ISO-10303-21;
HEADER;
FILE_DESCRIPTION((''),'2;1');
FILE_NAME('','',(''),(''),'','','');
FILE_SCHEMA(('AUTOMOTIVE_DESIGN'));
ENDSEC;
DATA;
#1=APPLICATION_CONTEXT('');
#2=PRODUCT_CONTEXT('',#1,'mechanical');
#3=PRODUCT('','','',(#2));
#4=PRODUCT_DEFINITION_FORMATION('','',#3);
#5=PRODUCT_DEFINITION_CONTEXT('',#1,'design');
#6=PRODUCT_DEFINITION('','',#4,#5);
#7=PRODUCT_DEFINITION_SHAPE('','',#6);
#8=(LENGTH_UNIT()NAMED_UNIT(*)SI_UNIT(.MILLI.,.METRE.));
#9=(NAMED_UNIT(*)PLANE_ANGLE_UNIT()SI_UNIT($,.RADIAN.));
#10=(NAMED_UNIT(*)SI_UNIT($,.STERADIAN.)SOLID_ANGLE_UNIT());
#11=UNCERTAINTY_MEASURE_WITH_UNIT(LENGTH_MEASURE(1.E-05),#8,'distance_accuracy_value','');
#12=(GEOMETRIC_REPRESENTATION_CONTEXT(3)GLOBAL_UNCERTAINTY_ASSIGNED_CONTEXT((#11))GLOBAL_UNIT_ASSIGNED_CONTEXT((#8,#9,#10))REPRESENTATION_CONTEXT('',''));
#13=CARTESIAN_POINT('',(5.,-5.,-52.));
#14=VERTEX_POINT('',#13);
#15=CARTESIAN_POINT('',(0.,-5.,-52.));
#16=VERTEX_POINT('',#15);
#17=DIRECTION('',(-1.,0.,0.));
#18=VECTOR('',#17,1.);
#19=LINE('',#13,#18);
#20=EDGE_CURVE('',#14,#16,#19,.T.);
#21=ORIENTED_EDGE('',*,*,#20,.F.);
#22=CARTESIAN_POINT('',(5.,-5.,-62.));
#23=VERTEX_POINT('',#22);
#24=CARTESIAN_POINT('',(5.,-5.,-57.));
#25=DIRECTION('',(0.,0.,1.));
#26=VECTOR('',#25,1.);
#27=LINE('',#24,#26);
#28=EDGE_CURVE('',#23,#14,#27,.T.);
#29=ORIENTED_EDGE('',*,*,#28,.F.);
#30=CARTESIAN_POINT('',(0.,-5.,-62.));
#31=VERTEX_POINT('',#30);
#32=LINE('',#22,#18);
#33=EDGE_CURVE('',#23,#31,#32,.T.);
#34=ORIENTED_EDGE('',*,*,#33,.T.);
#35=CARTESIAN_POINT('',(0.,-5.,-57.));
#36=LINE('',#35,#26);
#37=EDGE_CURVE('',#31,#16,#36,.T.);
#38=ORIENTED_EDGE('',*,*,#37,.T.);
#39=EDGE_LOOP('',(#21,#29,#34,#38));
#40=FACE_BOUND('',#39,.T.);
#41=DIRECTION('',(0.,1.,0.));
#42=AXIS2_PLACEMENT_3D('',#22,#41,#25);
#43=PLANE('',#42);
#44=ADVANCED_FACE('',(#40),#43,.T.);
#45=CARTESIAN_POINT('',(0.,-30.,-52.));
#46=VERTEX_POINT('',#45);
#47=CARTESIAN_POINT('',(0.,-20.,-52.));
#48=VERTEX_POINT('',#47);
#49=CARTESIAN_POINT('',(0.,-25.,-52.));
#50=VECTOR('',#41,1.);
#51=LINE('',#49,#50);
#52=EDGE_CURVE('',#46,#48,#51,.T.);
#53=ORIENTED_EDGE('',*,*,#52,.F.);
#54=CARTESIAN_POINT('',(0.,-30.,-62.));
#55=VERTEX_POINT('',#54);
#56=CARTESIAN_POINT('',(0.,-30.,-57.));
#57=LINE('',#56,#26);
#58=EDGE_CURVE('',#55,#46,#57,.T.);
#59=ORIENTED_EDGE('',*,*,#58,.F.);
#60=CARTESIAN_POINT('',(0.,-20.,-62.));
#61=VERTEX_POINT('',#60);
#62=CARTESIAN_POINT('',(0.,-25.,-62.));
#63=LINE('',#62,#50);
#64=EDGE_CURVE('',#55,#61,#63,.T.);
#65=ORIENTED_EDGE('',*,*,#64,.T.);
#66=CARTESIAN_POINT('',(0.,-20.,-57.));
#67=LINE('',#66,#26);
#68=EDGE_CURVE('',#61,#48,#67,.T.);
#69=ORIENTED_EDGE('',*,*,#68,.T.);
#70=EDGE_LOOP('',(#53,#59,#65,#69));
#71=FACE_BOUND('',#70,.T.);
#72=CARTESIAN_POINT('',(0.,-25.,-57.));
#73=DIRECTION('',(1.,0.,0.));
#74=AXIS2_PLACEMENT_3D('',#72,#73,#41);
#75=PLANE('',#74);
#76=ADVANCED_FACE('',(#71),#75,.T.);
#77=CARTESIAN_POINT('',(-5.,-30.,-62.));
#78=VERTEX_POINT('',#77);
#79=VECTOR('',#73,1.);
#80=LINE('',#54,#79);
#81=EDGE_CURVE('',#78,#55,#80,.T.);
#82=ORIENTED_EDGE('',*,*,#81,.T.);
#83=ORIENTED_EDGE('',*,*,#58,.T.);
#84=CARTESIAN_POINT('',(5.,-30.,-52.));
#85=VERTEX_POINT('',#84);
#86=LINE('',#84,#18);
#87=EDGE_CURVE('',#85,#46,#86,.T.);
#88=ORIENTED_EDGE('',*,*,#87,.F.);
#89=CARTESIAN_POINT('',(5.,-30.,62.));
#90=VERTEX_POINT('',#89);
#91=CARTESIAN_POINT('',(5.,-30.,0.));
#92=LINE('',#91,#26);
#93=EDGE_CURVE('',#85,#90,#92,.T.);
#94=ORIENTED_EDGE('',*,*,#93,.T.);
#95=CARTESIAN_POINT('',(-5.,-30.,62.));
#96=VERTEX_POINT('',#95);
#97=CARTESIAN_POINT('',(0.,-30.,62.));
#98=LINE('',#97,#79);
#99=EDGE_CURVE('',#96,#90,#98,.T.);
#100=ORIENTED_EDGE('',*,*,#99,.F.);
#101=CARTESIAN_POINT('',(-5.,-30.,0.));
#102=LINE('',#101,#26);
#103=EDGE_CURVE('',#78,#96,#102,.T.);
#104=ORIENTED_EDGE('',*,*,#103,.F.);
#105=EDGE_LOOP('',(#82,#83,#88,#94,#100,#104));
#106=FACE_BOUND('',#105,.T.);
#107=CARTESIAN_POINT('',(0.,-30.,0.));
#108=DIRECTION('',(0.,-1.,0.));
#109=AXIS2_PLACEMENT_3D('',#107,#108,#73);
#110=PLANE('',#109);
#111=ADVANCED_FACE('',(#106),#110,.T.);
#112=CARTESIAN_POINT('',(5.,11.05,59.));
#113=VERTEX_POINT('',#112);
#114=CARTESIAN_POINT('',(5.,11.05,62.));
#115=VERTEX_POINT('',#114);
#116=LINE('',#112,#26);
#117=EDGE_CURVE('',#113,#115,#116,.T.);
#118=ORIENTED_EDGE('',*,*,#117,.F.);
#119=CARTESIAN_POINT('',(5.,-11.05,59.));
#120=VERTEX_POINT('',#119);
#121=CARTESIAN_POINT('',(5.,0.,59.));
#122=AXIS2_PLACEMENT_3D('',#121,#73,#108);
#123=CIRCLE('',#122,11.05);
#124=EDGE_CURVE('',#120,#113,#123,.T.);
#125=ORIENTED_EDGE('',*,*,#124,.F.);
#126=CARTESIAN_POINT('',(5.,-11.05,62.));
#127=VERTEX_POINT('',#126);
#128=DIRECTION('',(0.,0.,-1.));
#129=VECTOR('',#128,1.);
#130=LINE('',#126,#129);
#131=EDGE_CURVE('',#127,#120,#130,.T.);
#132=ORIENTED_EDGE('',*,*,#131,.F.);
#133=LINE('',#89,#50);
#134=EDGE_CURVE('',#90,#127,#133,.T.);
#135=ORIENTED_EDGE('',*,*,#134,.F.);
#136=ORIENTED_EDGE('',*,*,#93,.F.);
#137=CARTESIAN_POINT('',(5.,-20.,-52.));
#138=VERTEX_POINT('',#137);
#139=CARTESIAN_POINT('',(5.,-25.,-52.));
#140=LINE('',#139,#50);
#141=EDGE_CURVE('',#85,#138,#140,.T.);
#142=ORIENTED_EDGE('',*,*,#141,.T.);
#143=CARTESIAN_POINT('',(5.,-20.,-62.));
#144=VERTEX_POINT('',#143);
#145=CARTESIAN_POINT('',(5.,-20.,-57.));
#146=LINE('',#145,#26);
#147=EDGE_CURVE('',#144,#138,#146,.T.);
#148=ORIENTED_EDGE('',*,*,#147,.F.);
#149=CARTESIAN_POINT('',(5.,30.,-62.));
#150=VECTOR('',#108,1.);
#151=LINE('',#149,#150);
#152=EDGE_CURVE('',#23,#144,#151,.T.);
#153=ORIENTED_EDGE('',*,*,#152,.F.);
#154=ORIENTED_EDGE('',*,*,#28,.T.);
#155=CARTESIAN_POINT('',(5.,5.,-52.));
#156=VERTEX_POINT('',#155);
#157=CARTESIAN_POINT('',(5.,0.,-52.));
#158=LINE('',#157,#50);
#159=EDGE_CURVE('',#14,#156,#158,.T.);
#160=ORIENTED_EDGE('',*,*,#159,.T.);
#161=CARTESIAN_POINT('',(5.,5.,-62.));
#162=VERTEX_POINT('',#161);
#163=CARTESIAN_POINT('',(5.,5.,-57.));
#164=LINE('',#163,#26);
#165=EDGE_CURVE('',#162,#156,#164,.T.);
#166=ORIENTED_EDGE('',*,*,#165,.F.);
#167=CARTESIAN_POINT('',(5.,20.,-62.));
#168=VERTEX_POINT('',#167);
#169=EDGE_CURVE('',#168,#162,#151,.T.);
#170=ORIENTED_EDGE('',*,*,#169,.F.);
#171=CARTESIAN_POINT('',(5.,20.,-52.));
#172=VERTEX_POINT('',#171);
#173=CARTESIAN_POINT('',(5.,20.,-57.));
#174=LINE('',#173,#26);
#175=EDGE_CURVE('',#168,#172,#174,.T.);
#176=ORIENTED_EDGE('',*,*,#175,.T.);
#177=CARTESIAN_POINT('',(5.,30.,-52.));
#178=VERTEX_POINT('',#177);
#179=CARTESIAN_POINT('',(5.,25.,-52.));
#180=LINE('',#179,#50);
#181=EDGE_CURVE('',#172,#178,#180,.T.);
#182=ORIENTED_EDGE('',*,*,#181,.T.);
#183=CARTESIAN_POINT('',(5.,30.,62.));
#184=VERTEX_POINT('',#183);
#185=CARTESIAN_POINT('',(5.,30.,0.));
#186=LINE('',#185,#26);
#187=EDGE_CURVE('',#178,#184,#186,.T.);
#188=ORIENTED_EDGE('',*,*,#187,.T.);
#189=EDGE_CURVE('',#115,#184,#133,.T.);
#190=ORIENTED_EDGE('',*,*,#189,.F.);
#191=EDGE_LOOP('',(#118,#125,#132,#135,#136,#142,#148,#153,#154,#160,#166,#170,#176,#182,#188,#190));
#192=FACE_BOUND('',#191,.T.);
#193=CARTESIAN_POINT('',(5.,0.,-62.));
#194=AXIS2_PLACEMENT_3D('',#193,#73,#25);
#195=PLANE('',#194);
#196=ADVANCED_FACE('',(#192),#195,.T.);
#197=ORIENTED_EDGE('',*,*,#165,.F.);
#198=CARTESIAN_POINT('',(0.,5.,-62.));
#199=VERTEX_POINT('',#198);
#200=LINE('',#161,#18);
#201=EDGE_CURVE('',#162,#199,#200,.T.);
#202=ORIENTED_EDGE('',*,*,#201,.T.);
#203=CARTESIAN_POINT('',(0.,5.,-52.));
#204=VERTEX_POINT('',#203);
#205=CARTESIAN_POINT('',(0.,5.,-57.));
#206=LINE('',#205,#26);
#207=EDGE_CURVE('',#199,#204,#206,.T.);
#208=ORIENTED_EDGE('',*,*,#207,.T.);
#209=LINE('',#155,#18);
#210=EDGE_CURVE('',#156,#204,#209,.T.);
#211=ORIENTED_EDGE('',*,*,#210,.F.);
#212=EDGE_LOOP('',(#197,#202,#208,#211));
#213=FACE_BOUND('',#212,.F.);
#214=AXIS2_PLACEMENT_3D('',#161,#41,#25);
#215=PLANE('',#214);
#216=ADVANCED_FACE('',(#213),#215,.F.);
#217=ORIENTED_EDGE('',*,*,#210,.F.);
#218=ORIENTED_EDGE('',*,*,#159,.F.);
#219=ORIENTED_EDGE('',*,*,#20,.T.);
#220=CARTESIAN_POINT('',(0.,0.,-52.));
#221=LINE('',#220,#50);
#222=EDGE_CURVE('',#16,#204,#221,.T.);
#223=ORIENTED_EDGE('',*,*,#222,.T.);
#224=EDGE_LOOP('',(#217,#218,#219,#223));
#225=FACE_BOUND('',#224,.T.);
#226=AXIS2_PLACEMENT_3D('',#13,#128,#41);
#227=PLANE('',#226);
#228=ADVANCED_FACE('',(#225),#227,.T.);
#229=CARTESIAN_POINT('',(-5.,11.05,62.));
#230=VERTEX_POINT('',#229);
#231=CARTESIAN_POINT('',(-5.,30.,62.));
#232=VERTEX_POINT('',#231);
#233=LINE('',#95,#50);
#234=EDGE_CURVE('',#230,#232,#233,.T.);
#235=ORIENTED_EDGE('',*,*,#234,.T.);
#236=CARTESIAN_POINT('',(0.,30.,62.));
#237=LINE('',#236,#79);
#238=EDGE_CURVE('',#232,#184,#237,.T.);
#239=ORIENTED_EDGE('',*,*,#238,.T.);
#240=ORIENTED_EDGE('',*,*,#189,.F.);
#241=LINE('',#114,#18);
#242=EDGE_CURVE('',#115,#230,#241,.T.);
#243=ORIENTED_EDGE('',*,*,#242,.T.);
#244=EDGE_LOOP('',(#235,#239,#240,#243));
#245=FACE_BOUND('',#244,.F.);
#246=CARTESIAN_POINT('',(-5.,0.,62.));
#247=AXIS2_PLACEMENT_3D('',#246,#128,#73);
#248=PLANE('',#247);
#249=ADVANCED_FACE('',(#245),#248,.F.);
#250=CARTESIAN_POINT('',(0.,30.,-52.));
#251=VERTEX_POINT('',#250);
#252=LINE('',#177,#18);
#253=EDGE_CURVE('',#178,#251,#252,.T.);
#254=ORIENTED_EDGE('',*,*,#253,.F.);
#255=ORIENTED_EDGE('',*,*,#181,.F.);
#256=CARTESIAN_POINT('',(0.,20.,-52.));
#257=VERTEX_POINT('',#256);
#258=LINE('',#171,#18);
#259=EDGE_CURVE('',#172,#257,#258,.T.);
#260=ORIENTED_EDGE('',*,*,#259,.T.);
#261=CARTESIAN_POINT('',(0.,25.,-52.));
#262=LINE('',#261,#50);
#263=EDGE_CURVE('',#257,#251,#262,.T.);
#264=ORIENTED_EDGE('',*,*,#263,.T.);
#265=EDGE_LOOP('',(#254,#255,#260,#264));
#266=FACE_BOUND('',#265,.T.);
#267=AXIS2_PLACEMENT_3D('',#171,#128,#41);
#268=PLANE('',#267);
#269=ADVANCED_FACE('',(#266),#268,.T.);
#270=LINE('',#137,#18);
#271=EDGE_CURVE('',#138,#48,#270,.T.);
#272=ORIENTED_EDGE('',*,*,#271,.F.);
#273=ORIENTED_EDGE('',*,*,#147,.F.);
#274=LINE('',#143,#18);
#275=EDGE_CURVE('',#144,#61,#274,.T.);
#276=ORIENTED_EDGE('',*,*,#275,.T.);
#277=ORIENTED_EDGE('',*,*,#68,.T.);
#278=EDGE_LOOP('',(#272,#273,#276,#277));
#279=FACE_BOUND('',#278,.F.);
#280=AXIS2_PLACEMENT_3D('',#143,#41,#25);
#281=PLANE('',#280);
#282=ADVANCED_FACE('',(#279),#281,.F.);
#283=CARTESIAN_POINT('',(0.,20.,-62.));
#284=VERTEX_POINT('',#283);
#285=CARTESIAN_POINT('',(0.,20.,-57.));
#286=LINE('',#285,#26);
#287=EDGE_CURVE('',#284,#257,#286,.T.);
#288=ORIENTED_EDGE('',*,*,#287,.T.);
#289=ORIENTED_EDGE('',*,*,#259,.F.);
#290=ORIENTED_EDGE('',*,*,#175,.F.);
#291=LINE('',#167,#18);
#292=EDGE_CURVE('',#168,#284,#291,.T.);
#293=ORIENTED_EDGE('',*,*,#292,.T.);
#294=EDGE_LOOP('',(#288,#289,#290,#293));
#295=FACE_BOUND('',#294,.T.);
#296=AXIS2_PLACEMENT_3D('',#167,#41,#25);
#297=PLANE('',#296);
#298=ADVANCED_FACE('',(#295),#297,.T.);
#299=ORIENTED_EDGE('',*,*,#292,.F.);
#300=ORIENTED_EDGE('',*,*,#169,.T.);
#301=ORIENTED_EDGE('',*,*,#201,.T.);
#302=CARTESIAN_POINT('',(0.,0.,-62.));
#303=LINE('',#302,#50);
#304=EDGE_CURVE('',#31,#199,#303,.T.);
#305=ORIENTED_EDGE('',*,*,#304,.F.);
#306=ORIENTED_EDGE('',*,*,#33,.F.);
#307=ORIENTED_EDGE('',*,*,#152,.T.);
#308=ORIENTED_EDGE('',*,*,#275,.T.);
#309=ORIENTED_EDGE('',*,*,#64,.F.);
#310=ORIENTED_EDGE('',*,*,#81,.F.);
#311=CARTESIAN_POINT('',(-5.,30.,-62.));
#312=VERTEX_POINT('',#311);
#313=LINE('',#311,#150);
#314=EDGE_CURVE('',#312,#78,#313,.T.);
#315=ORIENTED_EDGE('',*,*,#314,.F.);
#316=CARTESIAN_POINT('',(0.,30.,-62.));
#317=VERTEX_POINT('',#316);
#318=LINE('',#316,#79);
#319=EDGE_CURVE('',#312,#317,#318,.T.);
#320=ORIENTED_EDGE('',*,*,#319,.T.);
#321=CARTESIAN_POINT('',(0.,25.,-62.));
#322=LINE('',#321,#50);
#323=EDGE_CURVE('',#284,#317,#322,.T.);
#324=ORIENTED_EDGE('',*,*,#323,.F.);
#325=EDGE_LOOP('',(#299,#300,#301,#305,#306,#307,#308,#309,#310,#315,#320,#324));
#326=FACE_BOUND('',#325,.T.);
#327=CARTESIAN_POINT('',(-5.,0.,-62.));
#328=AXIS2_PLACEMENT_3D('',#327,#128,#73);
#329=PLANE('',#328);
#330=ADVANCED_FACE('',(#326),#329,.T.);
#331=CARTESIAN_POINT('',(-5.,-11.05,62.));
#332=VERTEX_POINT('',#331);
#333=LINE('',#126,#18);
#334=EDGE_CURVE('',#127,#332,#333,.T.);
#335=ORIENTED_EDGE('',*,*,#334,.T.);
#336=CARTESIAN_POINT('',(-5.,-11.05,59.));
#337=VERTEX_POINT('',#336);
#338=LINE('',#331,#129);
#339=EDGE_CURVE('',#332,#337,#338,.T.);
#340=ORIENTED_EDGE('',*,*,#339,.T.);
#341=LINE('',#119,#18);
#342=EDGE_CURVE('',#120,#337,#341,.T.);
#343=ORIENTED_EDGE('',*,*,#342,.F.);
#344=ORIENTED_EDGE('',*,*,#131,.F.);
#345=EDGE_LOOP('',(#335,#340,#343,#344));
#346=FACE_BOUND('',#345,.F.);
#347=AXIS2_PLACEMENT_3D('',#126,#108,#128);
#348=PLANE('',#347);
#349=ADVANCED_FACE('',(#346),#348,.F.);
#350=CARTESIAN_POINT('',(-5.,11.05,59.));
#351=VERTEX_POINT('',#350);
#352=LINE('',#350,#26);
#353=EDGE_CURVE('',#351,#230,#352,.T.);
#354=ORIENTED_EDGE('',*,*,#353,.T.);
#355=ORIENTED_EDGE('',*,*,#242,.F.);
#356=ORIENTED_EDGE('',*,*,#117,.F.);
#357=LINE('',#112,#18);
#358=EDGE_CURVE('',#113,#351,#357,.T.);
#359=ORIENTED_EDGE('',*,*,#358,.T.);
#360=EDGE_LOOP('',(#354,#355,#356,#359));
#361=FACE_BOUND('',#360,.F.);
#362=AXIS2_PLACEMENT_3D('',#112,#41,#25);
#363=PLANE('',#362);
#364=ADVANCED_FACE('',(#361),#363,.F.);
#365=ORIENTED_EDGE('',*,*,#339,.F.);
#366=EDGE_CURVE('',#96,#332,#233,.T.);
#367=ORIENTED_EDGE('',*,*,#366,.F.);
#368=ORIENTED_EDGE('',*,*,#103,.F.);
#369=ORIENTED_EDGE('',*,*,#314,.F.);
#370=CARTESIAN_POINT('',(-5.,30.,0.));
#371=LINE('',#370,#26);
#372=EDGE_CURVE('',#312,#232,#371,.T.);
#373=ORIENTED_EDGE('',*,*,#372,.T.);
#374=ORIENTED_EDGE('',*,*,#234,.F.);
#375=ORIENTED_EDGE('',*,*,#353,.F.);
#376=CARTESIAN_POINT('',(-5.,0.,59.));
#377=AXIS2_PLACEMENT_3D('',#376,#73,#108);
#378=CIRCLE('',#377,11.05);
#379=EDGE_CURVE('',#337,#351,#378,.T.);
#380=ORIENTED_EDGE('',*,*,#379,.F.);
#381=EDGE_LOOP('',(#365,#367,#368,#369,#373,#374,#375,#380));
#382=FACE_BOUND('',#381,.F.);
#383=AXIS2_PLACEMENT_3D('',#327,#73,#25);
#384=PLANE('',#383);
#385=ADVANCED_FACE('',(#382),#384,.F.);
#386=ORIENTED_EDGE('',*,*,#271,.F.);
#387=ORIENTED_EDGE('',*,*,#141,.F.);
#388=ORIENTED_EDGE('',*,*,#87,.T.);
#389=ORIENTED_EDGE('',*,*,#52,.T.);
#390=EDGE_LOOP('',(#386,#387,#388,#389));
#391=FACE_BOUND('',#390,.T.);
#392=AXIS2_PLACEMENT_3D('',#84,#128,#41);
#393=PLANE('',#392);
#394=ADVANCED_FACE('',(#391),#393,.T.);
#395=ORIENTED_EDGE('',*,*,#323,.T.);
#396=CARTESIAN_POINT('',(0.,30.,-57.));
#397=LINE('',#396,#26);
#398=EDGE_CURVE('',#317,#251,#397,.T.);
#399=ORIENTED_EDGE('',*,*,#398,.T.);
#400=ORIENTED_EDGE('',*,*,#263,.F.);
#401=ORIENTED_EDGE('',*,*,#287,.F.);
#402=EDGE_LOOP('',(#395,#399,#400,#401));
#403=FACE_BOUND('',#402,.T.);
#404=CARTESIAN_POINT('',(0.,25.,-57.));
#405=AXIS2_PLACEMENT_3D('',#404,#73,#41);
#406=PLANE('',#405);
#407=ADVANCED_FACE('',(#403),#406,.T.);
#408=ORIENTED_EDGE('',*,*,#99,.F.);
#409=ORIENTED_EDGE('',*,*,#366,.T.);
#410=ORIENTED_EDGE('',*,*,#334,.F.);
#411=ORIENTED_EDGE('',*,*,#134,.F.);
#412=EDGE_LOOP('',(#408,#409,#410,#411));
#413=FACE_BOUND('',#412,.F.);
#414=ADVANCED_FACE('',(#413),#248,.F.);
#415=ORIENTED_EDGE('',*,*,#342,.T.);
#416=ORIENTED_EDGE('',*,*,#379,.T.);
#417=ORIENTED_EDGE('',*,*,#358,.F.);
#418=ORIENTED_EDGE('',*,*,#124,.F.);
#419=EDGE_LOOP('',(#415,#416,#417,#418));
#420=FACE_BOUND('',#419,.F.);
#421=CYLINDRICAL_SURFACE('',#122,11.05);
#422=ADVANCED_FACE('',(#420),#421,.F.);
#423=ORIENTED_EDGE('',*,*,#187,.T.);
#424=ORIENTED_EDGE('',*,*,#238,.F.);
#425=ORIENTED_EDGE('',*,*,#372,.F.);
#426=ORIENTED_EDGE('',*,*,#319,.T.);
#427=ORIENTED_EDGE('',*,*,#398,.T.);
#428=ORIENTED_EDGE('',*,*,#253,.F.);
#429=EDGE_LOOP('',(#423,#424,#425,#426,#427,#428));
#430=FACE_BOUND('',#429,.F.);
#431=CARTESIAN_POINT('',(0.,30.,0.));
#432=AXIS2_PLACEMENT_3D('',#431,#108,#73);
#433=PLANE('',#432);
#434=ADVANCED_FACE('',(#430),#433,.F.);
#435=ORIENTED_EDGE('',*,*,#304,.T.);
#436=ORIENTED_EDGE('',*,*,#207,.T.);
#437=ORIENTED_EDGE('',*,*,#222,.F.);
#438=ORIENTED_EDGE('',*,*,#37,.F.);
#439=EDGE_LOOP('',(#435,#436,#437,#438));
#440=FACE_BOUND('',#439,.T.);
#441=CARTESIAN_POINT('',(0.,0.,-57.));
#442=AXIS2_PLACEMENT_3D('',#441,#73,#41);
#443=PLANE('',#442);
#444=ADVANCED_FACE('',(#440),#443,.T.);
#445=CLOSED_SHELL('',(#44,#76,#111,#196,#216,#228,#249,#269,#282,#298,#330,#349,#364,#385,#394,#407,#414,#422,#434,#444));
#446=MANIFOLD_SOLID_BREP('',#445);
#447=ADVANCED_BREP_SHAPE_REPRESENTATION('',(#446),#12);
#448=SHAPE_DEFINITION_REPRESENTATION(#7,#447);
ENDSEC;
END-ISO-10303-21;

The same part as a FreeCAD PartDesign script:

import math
import FreeCAD as App
import Part
import Sketcher

V = App.Vector
Q = App.Units.Quantity

doc = App.newDocument("Part")
params = doc.addObject("Spreadsheet::Sheet", "Params")
for row, (alias, value) in enumerate([
    ("sketch1_width", "10 mm"),
    ("sketch1_height", "124 mm"),
    ("pad1_length", "60 mm"),
    ("sketch2_height", "3 mm"),
    ("sketch2_radius", "11.05 mm"),
    ("pocket1_length", "10 mm"),
    ("sketch3_width", "10 mm"),
    ("pocket2_length", "5 mm"),
], start=1):
    params.set(f"A{row}", alias)
    params.set(f"B{row}", "=" + value)
    params.setAlias(f"B{row}", alias)

body = doc.addObject("PartDesign::Body", "Body")

# Sketch on XZ plane
sketch1 = body.newObject("Sketcher::SketchObject", "Sketch")
sketch1.AttachmentSupport = (doc.getObject("XZ_Plane"), [""])
sketch1.MapMode = "FlatFace"
sketch1.addGeometry([
    Part.LineSegment(V(-5, 62, 0), V(-5, -62, 0)),
    Part.LineSegment(V(-5, -62, 0), V(5, -62, 0)),
    Part.LineSegment(V(5, -62, 0), V(5, 62, 0)),
    Part.LineSegment(V(5, 62, 0), V(-5, 62, 0)),
], False)
sketch1.addConstraint([
    Sketcher.Constraint("Coincident", 0, 2, 1, 1),
    Sketcher.Constraint("Coincident", 1, 2, 2, 1),
    Sketcher.Constraint("Coincident", 2, 2, 3, 1),
    Sketcher.Constraint("Coincident", 3, 2, 0, 1),
    Sketcher.Constraint("Vertical", 0),
    Sketcher.Constraint("Horizontal", 1),
    Sketcher.Constraint("Vertical", 2),
    Sketcher.Constraint("Horizontal", 3),
    Sketcher.Constraint("Symmetric", 0, 2, 2, 2, -1, 1),
    Sketcher.Constraint("DistanceX", 1, 1, 1, 2, Q("10 mm")),
    Sketcher.Constraint("DistanceY", 0, 2, 0, 1, Q("124 mm")),
])
sketch1.setExpression("Constraints[9]", "Params.sketch1_width")
sketch1.setExpression("Constraints[10]", "Params.sketch1_height")
pad1 = body.newObject("PartDesign::Pad", "Pad")
pad1.Profile = sketch1
pad1.setExpression("Length", "Params.pad1_length")
pad1.Midplane = True

# Sketch on YZ plane
sketch2 = body.newObject("Sketcher::SketchObject", "Sketch001")
sketch2.AttachmentSupport = (doc.getObject("YZ_Plane"), [""])
sketch2.MapMode = "FlatFace"
sketch2.AttachmentOffset = App.Placement(V(0, 0, 5), App.Rotation())
sketch2.addGeometry([
    Part.LineSegment(V(-11.1, 62, 0), V(-11.1, 59, 0)),
    Part.ArcOfCircle(Part.Circle(V(0, 59, 0), V(0, 0, 1), 11.1), math.radians(180), math.radians(360)),
    Part.LineSegment(V(11.1, 59, 0), V(11.1, 62, 0)),
    Part.LineSegment(V(11.1, 62, 0), V(-11.1, 62, 0)),
], False)
sketch2.addConstraint([
    Sketcher.Constraint("Tangent", 0, 2, 1, 1),
    Sketcher.Constraint("Tangent", 1, 2, 2, 1),
    Sketcher.Constraint("Coincident", 2, 2, 3, 1),
    Sketcher.Constraint("Coincident", 3, 2, 0, 1),
    Sketcher.Constraint("Vertical", 0),
    Sketcher.Constraint("Vertical", 2),
    Sketcher.Constraint("Horizontal", 3),
    Sketcher.Constraint("PointOnObject", 1, 3, -2),
    Sketcher.Constraint("DistanceY", 0, 2, 0, 1, Q("3 mm")),
    Sketcher.Constraint("Radius", 1, Q("11.05 mm")),
    Sketcher.Constraint("DistanceY", -1, 1, 1, 3, Q("59 mm")),
])
sketch2.setExpression("Constraints[8]", "Params.sketch2_height")
sketch2.setExpression("Constraints[9]", "Params.sketch2_radius")
pocket1 = body.newObject("PartDesign::Pocket", "Pocket")
pocket1.Profile = sketch2
pocket1.setExpression("Length", "Params.pocket1_length")

# Sketch on YZ plane
sketch3 = body.newObject("Sketcher::SketchObject", "Sketch002")
sketch3.AttachmentSupport = (doc.getObject("YZ_Plane"), [""])
sketch3.MapMode = "FlatFace"
sketch3.AttachmentOffset = App.Placement(V(0, 0, 5), App.Rotation())
sketch3.addGeometry([
    Part.LineSegment(V(-30, -52, 0), V(-30, -62, 0)),  # 0
    Part.LineSegment(V(-30, -62, 0), V(-20, -62, 0)),  # 1
    Part.LineSegment(V(-20, -62, 0), V(-20, -52, 0)),  # 2
    Part.LineSegment(V(-20, -52, 0), V(-30, -52, 0)),  # 3
    Part.LineSegment(V(20, -52, 0), V(20, -62, 0)),  # 4
    Part.LineSegment(V(20, -62, 0), V(30, -62, 0)),  # 5
    Part.LineSegment(V(30, -62, 0), V(30, -52, 0)),  # 6
    Part.LineSegment(V(30, -52, 0), V(20, -52, 0)),  # 7
    Part.LineSegment(V(-5, -52, 0), V(-5, -62, 0)),  # 8
    Part.LineSegment(V(-5, -62, 0), V(5, -62, 0)),  # 9
    Part.LineSegment(V(5, -62, 0), V(5, -52, 0)),  # 10
    Part.LineSegment(V(5, -52, 0), V(-5, -52, 0)),  # 11
], False)
sketch3.addConstraint([
    Sketcher.Constraint("Coincident", 0, 2, 1, 1),
    Sketcher.Constraint("Coincident", 1, 2, 2, 1),
    Sketcher.Constraint("Coincident", 2, 2, 3, 1),
    Sketcher.Constraint("Coincident", 3, 2, 0, 1),
    Sketcher.Constraint("Coincident", 4, 2, 5, 1),
    Sketcher.Constraint("Coincident", 5, 2, 6, 1),
    Sketcher.Constraint("Coincident", 6, 2, 7, 1),
    Sketcher.Constraint("Coincident", 7, 2, 4, 1),
    Sketcher.Constraint("Coincident", 8, 2, 9, 1),
    Sketcher.Constraint("Coincident", 9, 2, 10, 1),
    Sketcher.Constraint("Coincident", 10, 2, 11, 1),
    Sketcher.Constraint("Coincident", 11, 2, 8, 1),
    Sketcher.Constraint("Vertical", 0),
    Sketcher.Constraint("Horizontal", 1),
    Sketcher.Constraint("Vertical", 2),
    Sketcher.Constraint("Horizontal", 3),
    Sketcher.Constraint("Vertical", 4),
    Sketcher.Constraint("Horizontal", 5),
    Sketcher.Constraint("Vertical", 6),
    Sketcher.Constraint("Horizontal", 7),
    Sketcher.Constraint("Vertical", 8),
    Sketcher.Constraint("Horizontal", 9),
    Sketcher.Constraint("Vertical", 10),
    Sketcher.Constraint("Horizontal", 11),
    Sketcher.Constraint("Symmetric", 1, 2, 4, 2, -2),
    Sketcher.Constraint("Symmetric", 3, 2, 6, 2, -2),
    Sketcher.Constraint("Horizontal", 5, 2, 8, 2),
    Sketcher.Constraint("Horizontal", 7, 2, 10, 2),
    Sketcher.Constraint("Equal", 7, 9),
    Sketcher.Constraint("Equal", 11, 0),
    Sketcher.Constraint("DistanceX", 1, 1, 1, 2, Q("10 mm")),
    Sketcher.Constraint("DistanceX", 0, 2, -1, 1, Q("30 mm")),
    Sketcher.Constraint("DistanceY", 0, 2, -1, 1, Q("62 mm")),
    Sketcher.Constraint("DistanceX", 8, 2, -1, 1, Q("5 mm")),
])
sketch3.setExpression("Constraints[30]", "Params.sketch3_width")
pocket2 = body.newObject("PartDesign::Pocket", "Pocket001")
pocket2.Profile = sketch3
pocket2.setExpression("Length", "Params.pocket2_length")

doc.recompute()
